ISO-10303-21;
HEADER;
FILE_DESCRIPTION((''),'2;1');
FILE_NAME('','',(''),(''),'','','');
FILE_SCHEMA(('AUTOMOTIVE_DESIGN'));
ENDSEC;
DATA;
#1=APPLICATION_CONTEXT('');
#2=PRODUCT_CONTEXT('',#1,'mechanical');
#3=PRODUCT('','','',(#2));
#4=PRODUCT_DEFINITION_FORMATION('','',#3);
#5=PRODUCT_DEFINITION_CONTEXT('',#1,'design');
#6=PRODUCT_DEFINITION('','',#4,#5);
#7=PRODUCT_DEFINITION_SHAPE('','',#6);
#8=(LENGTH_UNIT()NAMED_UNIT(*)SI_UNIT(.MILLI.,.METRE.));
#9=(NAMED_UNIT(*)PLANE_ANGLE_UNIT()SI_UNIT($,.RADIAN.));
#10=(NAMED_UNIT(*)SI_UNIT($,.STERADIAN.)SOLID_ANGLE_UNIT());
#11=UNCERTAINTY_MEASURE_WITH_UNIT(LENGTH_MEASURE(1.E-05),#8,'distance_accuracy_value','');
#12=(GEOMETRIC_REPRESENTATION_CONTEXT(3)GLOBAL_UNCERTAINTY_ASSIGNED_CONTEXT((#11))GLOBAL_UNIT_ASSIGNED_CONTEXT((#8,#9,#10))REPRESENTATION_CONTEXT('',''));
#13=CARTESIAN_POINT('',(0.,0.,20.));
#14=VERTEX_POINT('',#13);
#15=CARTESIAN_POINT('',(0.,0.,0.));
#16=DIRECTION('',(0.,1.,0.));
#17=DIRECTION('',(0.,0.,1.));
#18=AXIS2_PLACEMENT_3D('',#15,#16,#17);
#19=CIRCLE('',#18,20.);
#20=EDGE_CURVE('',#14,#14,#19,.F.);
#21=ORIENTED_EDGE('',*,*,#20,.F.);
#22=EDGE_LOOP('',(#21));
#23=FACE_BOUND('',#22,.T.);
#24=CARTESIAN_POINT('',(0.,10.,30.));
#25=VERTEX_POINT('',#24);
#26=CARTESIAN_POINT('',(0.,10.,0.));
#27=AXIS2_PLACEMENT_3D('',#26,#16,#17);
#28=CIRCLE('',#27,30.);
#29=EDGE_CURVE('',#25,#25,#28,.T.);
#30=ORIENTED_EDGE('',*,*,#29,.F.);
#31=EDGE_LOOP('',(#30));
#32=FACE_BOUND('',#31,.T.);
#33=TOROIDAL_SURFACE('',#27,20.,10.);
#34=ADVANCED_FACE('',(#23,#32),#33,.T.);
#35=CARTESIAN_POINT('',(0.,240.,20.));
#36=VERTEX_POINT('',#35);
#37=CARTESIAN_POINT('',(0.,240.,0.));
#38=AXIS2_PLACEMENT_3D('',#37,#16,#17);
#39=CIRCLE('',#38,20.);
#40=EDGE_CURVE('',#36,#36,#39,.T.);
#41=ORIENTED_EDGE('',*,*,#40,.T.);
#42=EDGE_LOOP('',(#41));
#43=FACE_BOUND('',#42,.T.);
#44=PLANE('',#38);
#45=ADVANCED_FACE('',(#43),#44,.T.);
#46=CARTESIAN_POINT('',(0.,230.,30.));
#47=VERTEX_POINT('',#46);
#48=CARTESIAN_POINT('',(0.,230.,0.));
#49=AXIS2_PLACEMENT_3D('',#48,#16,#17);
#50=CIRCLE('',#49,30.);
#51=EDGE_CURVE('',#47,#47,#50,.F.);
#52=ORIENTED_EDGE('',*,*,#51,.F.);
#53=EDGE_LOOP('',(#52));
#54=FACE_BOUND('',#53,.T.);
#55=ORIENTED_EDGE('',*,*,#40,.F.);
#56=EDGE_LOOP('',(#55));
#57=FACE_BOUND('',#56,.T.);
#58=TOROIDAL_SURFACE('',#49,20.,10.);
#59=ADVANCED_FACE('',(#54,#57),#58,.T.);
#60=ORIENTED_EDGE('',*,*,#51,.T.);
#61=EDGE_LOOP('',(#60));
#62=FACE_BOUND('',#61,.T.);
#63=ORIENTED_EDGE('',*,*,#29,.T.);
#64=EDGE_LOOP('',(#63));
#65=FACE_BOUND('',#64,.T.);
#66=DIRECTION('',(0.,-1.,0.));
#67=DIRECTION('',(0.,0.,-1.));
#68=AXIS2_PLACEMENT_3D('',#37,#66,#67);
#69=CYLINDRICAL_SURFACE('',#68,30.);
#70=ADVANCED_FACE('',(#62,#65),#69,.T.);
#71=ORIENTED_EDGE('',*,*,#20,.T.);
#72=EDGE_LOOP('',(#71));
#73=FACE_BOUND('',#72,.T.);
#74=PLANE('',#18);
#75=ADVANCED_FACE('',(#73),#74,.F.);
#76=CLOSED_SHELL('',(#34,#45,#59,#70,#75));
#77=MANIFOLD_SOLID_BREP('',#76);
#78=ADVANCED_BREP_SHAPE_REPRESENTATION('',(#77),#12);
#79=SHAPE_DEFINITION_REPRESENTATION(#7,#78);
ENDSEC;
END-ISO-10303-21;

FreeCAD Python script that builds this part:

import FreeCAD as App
import Part
import Sketcher
Q = App.Units.Quantity


def edges_at(feature, points):
    """Names of the edges that pass closest to the given points."""
    edges = feature.Shape.Edges
    near = lambda p: min(range(len(edges)), key=lambda i: edges[i].distToShape(Part.Vertex(*p))[0])
    return sorted({f"Edge{near(p) + 1}" for p in points})

doc = App.newDocument("Part")
params = doc.addObject("Spreadsheet::Sheet", "Params")
for row, (alias, value) in enumerate([
    ("sketch1_diameter", "60 mm"),
    ("pad1_length", "240 mm"),
    ("fillet_radius", "10 mm"),
], start=1):
    params.set(f"A{row}", alias)
    params.set(f"B{row}", "=" + value)
    params.setAlias(f"B{row}", alias)

body = doc.addObject("PartDesign::Body", "Body")

# Sketch on XZ plane
sketch1 = doc.addObject("Sketcher::SketchObject", "Sketch")
body.addObject(sketch1)
sketch1.AttachmentSupport = (doc.XZ_Plane, [""])
sketch1.MapMode = "FlatFace"
sketch1.addGeometry(Part.Circle(App.Vector(0, 0, 0), App.Vector(0, 0, 1), 30), False)
sketch1.addConstraint(Sketcher.Constraint("Coincident", 0, 3, -1, 1))
sketch1.addConstraint(Sketcher.Constraint("Diameter", 0, Q("60 mm")))
sketch1.setExpression("Constraints[1]", "Params.sketch1_diameter")
pad1 = doc.addObject("PartDesign::Pad", "Pad")
body.addObject(pad1)
pad1.Profile = sketch1
pad1.setExpression("Length", "Params.pad1_length")
pad1.Reversed = True
doc.recompute()

fillet = doc.addObject("PartDesign::Fillet", "Fillet")
body.addObject(fillet)
fillet.Base = (pad1, edges_at(pad1, [(-30, 0, 0), (-30, 240, 0)]))
fillet.setExpression("Radius", "Params.fillet_radius")

doc.recompute()
